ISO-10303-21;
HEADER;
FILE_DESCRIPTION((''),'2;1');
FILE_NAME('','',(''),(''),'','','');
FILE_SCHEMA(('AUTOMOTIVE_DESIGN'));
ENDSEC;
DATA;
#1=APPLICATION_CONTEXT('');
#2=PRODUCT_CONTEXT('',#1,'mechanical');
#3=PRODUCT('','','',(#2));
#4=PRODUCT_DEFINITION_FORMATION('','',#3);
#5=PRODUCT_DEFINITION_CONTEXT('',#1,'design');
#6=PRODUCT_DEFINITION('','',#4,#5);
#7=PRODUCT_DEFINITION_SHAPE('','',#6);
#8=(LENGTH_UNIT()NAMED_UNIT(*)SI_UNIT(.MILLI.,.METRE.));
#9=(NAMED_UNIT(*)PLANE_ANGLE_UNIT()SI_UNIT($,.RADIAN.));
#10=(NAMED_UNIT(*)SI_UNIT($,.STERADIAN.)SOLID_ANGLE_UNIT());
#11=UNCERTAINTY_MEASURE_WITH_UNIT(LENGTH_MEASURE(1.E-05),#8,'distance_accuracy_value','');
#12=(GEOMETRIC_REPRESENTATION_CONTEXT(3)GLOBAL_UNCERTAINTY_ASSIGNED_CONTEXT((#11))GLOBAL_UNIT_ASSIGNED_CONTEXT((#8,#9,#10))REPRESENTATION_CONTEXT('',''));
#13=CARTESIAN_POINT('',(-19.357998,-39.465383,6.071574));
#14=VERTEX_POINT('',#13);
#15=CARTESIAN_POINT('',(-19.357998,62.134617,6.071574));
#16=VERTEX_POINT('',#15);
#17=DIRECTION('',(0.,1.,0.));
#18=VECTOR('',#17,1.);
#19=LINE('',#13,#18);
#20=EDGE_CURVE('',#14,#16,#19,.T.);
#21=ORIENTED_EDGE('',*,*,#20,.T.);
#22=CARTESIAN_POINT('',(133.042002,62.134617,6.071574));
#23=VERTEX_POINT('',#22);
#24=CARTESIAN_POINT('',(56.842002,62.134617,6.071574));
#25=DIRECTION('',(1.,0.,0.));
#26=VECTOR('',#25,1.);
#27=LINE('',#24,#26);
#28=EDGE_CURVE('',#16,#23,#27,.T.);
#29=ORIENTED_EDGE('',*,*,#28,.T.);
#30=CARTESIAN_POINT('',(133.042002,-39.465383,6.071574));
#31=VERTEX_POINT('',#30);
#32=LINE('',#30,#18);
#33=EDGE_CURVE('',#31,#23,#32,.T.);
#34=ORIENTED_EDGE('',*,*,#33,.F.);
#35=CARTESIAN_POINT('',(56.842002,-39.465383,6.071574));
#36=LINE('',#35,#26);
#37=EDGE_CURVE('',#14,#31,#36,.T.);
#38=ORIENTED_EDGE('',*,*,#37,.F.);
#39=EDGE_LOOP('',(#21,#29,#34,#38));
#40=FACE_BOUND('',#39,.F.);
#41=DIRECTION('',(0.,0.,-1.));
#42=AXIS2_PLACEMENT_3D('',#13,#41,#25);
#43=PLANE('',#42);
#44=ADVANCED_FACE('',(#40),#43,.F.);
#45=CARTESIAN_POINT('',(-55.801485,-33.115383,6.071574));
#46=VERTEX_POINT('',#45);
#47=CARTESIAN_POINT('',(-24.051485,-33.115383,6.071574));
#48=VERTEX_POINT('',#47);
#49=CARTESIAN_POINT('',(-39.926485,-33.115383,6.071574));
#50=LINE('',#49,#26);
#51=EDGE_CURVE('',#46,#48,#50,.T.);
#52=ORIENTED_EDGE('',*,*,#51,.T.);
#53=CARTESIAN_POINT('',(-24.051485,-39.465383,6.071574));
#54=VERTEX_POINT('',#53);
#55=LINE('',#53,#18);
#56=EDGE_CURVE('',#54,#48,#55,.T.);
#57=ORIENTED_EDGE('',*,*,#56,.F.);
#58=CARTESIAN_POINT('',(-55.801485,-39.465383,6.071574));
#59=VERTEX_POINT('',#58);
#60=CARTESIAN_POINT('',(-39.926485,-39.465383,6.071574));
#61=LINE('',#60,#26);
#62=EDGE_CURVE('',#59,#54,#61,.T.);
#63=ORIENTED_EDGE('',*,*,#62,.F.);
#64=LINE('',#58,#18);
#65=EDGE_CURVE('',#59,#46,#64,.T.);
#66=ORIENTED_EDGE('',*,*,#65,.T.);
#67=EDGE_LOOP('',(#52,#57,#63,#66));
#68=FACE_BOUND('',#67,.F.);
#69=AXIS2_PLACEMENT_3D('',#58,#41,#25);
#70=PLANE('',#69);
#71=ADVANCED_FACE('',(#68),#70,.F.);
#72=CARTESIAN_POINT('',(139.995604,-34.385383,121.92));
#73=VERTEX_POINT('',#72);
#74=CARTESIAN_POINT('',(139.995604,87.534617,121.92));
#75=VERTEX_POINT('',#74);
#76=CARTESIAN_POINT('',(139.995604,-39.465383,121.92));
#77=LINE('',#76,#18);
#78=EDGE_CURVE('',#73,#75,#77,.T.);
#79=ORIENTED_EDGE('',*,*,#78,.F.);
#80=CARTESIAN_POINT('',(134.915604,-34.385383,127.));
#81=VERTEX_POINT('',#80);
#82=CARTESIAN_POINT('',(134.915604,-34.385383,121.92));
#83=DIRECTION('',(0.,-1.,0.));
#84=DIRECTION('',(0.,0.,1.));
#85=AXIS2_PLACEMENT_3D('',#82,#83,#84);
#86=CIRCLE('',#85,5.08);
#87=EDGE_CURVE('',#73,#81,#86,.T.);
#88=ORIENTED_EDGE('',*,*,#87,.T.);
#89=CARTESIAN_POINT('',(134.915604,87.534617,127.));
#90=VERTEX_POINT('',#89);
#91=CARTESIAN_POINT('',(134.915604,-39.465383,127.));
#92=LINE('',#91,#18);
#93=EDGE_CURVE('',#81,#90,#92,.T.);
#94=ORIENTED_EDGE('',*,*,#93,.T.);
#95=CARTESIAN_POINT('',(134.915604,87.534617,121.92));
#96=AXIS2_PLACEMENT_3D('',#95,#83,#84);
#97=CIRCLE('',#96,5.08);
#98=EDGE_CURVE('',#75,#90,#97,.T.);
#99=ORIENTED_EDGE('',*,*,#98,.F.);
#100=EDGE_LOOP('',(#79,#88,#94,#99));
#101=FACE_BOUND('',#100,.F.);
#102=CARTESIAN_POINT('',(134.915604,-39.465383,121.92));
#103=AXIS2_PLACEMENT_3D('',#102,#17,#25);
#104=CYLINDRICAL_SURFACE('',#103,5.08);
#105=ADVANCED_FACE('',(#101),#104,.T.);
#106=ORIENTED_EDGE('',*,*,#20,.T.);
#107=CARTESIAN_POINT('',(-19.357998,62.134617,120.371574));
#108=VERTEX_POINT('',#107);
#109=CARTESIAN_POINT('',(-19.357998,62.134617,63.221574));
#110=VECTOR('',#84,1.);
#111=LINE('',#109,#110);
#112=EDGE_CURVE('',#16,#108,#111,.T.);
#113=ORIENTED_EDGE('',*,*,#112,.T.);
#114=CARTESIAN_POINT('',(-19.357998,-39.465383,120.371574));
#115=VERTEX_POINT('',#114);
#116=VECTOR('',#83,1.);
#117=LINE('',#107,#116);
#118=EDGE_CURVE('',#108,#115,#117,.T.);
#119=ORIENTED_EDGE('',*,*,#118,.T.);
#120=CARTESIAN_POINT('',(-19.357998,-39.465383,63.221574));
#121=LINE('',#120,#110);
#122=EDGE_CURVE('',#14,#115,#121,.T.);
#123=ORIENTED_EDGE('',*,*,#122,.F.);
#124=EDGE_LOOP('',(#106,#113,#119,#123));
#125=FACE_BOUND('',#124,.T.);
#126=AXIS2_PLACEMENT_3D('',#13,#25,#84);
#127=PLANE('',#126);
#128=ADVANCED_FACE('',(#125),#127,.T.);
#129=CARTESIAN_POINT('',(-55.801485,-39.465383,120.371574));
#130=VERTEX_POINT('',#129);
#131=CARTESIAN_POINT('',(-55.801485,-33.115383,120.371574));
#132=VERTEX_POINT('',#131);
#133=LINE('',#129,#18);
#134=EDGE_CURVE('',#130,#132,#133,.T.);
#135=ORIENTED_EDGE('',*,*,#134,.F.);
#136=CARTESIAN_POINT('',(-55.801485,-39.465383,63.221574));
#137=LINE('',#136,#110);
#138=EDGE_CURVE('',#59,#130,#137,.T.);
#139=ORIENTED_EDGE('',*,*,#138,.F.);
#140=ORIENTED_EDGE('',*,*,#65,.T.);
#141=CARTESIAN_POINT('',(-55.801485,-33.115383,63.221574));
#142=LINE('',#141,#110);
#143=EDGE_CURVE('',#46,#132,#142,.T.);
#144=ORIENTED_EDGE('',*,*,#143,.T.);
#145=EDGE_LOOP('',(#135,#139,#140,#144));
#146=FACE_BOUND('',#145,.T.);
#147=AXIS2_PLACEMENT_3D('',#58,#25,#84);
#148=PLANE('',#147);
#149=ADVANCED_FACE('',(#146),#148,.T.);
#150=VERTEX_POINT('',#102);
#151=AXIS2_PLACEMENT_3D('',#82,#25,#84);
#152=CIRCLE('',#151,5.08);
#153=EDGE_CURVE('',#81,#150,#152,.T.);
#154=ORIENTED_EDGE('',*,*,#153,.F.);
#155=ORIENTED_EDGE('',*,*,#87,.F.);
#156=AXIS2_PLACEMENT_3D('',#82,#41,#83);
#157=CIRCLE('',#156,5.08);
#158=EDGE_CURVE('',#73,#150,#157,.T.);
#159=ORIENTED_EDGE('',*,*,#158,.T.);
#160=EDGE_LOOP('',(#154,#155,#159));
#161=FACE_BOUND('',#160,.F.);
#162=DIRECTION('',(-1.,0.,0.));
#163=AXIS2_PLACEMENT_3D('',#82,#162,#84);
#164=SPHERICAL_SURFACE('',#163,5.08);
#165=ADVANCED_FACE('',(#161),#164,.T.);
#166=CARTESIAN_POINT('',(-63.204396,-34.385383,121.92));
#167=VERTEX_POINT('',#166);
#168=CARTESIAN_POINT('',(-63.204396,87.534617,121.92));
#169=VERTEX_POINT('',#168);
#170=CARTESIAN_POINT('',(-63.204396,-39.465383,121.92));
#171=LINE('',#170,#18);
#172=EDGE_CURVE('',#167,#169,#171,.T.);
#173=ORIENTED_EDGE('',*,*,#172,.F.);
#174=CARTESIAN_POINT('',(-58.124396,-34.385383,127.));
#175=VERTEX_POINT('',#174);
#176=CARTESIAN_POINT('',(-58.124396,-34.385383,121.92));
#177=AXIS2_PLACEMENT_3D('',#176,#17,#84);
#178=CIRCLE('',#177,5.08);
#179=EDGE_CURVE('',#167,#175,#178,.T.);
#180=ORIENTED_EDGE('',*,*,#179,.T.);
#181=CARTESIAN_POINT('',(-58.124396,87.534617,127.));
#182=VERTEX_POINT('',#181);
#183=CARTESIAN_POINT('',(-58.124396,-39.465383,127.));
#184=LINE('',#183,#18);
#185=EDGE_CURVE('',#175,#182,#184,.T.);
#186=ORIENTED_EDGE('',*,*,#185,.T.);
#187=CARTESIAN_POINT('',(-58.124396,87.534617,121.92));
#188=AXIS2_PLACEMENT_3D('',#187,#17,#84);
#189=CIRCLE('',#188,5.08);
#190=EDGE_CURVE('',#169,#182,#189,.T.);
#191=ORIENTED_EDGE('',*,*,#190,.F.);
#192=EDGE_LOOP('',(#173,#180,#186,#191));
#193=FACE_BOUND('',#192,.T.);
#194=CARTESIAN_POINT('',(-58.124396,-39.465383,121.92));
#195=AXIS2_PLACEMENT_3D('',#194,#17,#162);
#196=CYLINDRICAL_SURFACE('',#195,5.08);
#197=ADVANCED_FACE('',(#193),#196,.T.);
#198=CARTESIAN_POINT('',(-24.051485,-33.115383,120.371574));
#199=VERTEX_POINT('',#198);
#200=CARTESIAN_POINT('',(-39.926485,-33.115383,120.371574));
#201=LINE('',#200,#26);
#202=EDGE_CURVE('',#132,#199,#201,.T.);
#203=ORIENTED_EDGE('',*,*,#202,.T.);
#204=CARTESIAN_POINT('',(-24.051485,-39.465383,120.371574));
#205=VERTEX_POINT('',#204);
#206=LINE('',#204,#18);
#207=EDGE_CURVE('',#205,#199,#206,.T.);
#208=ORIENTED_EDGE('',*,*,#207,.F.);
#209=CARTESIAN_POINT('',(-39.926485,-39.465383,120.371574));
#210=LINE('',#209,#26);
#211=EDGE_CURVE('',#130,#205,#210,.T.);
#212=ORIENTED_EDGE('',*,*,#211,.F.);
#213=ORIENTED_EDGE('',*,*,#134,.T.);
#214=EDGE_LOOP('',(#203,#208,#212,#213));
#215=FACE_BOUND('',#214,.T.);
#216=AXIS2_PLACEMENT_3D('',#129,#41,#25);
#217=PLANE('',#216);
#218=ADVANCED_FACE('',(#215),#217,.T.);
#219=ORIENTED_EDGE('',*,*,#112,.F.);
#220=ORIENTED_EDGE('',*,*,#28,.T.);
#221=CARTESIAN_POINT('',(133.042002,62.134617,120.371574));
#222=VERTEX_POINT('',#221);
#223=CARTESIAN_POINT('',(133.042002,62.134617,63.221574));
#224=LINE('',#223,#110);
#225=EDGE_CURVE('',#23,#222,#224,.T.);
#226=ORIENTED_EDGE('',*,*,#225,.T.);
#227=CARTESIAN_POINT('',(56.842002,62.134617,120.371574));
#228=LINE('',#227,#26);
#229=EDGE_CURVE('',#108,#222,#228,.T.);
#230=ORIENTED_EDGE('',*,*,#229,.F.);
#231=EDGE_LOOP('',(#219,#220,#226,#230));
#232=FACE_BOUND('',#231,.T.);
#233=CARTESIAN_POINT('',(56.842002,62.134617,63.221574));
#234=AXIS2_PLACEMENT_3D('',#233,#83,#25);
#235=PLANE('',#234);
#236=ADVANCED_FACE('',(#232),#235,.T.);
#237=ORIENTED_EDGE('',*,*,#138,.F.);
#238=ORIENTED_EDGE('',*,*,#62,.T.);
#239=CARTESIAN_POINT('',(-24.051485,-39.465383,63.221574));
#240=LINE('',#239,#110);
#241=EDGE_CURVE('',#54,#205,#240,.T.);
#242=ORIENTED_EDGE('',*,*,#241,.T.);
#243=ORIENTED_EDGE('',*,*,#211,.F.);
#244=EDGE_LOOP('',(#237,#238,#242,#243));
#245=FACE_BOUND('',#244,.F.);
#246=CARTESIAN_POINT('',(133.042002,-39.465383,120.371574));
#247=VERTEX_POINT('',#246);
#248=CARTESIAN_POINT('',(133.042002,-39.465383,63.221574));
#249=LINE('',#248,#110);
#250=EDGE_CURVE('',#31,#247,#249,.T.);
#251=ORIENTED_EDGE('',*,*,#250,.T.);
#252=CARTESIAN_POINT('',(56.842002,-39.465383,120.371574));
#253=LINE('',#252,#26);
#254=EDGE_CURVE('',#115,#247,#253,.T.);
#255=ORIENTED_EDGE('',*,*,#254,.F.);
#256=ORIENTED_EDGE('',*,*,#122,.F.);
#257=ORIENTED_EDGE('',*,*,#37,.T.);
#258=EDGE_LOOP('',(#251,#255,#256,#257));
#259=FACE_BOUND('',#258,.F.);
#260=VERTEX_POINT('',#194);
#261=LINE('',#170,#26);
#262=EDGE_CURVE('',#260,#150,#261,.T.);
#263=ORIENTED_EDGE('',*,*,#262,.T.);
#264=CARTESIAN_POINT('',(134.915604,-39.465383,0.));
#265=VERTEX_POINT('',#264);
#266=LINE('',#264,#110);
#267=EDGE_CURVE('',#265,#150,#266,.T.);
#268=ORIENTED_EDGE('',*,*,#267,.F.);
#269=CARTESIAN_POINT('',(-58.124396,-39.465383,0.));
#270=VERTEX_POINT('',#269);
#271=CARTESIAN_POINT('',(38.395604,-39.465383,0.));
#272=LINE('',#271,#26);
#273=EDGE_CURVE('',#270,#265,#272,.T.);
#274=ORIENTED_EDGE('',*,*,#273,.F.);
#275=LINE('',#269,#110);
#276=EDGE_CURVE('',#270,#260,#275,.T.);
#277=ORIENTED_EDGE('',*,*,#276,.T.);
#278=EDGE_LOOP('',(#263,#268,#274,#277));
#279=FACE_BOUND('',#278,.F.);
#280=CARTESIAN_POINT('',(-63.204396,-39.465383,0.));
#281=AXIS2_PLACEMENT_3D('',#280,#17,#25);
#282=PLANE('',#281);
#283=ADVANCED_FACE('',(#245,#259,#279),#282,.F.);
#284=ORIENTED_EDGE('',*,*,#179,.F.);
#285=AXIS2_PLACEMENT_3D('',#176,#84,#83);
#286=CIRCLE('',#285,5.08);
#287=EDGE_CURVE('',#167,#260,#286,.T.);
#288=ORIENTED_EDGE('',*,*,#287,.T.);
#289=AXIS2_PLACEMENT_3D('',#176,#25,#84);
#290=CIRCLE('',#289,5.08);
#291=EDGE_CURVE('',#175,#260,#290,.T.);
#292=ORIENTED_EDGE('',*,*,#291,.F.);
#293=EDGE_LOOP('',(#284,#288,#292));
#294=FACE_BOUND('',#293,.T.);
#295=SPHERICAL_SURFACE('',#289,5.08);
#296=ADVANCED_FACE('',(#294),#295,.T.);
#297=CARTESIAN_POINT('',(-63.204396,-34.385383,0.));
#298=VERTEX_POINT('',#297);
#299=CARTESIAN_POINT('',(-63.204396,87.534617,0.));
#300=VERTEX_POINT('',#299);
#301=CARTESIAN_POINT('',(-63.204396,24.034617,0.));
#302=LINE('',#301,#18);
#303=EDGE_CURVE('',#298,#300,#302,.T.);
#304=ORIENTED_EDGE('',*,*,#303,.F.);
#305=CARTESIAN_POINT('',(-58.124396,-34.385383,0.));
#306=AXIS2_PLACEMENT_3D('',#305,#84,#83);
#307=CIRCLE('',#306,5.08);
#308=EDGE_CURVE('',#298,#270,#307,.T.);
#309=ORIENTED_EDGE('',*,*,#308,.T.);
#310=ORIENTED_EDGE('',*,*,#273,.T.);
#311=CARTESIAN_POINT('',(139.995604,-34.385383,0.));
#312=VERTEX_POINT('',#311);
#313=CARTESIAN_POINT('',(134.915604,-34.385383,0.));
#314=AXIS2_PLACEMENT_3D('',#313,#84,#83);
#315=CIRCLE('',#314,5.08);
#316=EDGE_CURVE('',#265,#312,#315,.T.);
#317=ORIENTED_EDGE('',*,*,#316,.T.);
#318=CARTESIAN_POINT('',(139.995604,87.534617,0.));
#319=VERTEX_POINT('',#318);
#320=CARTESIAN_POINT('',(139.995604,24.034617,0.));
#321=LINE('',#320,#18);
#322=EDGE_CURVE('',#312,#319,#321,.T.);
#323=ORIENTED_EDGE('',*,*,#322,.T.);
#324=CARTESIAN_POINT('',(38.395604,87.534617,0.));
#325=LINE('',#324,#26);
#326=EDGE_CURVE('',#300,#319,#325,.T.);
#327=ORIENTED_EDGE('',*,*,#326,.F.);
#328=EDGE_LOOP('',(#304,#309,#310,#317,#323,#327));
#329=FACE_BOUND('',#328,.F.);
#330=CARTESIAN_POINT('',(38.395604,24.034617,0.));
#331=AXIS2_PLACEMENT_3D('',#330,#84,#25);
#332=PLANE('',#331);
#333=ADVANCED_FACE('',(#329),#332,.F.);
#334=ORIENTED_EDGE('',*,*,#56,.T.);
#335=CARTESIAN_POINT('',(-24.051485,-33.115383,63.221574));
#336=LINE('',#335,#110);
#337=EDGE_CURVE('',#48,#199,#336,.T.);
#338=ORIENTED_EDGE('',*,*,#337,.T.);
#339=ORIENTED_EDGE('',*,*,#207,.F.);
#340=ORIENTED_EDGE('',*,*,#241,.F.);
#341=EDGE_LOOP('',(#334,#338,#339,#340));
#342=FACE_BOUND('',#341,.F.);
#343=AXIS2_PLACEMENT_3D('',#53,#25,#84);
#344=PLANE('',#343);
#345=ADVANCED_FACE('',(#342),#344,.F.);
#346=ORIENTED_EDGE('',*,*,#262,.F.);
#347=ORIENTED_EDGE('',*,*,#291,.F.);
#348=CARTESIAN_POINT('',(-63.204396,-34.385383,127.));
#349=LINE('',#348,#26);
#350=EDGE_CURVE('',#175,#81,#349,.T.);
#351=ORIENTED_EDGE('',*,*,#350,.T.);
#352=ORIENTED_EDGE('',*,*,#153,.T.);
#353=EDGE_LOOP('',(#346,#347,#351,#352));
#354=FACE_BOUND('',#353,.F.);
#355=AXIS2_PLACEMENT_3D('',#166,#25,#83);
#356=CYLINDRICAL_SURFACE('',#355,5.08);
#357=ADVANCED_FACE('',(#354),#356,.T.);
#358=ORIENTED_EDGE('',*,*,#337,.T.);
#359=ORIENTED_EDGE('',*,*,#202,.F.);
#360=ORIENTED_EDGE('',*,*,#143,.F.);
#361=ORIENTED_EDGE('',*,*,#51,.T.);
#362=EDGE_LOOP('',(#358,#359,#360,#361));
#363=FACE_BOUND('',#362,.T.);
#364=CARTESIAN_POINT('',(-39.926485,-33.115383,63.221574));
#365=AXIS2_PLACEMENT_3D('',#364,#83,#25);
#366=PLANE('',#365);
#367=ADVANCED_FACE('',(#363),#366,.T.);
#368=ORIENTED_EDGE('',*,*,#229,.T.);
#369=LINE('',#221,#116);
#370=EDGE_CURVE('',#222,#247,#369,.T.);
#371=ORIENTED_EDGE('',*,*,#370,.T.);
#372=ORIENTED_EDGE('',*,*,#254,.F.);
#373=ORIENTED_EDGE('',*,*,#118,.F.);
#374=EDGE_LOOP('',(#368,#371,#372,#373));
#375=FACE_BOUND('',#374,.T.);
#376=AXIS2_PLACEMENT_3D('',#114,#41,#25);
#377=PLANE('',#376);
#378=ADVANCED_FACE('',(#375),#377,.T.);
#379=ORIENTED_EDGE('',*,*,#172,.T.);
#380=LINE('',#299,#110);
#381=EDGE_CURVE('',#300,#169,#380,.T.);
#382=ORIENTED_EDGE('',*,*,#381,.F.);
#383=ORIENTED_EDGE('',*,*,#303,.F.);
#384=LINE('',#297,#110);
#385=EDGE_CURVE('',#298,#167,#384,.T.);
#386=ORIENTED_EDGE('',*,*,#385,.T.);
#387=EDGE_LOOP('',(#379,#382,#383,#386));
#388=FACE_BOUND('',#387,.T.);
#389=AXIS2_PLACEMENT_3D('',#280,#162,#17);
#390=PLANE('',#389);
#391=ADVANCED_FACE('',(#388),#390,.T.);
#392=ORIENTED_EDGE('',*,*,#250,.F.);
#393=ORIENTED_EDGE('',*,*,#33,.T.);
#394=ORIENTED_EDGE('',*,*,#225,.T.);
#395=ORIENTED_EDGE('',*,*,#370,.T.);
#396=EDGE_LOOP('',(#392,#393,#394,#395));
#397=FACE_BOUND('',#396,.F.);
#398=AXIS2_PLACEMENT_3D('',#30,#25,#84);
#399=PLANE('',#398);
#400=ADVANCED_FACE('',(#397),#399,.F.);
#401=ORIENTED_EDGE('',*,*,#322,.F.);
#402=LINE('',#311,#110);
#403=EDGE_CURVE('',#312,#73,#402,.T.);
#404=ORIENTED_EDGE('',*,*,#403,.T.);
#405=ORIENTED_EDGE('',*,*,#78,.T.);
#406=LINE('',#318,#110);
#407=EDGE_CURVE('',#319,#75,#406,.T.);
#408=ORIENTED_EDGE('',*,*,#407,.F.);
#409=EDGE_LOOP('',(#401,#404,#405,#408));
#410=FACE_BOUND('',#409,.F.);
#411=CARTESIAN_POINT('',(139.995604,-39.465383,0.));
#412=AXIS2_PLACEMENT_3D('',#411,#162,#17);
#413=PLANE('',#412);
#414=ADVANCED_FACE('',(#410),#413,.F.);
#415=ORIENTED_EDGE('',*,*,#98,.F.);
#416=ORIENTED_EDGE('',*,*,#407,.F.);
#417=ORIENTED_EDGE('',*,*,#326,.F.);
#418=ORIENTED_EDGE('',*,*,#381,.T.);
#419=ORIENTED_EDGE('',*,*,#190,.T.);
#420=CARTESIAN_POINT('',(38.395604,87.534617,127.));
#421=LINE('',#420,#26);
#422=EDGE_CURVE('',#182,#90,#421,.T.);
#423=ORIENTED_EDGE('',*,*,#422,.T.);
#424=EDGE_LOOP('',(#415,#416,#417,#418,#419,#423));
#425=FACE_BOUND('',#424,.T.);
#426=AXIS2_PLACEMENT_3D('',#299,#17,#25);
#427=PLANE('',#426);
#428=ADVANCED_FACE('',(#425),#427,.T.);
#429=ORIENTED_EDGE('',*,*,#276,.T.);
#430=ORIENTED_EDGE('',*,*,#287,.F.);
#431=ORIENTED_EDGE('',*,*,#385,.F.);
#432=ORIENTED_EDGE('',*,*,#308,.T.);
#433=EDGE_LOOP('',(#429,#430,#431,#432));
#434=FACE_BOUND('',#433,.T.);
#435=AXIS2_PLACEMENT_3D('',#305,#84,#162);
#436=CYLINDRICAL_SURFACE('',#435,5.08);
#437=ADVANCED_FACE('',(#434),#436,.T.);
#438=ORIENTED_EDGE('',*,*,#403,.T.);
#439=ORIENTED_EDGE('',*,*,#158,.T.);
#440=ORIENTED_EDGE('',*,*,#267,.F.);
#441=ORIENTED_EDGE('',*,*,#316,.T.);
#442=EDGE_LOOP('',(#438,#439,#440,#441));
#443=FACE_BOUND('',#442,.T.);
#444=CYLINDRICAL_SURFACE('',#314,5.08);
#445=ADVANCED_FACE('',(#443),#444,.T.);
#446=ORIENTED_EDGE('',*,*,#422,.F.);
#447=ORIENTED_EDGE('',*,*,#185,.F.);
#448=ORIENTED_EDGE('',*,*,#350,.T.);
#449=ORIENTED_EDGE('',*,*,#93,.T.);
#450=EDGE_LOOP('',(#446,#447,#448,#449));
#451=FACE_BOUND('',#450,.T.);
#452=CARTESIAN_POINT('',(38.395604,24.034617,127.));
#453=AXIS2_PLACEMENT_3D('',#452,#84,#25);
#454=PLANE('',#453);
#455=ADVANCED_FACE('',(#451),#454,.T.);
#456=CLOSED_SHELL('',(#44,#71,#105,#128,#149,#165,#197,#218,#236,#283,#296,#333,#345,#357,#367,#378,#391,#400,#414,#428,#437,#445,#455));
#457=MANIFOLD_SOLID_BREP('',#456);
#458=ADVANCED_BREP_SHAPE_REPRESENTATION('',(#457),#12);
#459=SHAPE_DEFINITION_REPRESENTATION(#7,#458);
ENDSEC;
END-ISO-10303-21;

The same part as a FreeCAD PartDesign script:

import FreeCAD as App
import Part
import Sketcher
from FreeCAD import Vector
Q = App.Units.Quantity


def edges_at(feature, points):
    """Names of the edges that pass closest to the given points."""
    edges = feature.Shape.Edges
    near = lambda p: min(range(len(edges)), key=lambda i: edges[i].distToShape(Part.Vertex(*p))[0])
    return sorted({f"Edge{near(p) + 1}" for p in points})


def add_polygon(sketch, points):
    """Adds a closed chain of lines whose ends are joined by coincident constraints."""
    first, n = sketch.GeometryCount, len(points)
    for a, b in zip(points, points[1:] + points[:1]):
        sketch.addGeometry(Part.LineSegment(App.Vector(*a, 0), App.Vector(*b, 0)), False)
    for i in range(n):
        sketch.addConstraint(Sketcher.Constraint("Coincident", first + i, 2, first + (i + 1) % n, 1))

doc = App.newDocument("Part")
body = doc.addObject("PartDesign::Body", "Body")

# Sketch on XY plane
sketch1 = body.newObject("Sketcher::SketchObject", "Sketch")
sketch1.AttachmentSupport = (doc.getObject("XY_Plane"), [""])
sketch1.MapMode = "FlatFace"
add_polygon(sketch1, [(-63, 88), (-63, -39), (140, -39), (140, 88)])  # lines 0-3
sketch1.addConstraint([
    Sketcher.Constraint("Vertical", 0),
    Sketcher.Constraint("Horizontal", 1),
    Sketcher.Constraint("Vertical", 2),
    Sketcher.Constraint("Horizontal", 3),
    Sketcher.Constraint("DistanceX", 1, 1, 1, 2, Q("8 in")),
    Sketcher.Constraint("DistanceY", 0, 2, 0, 1, Q("5 in")),
    Sketcher.Constraint("DistanceX", 0, 2, -1, 1, 63.204396),
    Sketcher.Constraint("DistanceY", 0, 2, -1, 1, 39.465383),
])
pad1 = body.newObject("PartDesign::Pad", "Pad")
pad1.Profile = sketch1
pad1.Length = Q("5 in")
doc.recompute()

fillet = body.newObject("PartDesign::Fillet", "Fillet")
fillet.Base = (pad1, edges_at(pad1, [
    (38.396, -39.465, 127),
    (-63.204, 24.035, 127),
    (139.996, 24.035, 127),
    (139.996, -39.465, 63.5),
    (-63.204, -39.465, 63.5),
]))
fillet.Radius = Q("0.2 in")

# Sketch on XZ plane
sketch2 = body.newObject("Sketcher::SketchObject", "Sketch001")
sketch2.AttachmentSupport = (doc.getObject("XZ_Plane"), [""])
sketch2.MapMode = "FlatFace"
sketch2.AttachmentOffset = App.Placement(Vector(0, 0, 39.465383), App.Rotation())
add_polygon(sketch2, [(-19, 120), (-19, 6), (133, 6), (133, 120)])  # lines 0-3
sketch2.addConstraint([
    Sketcher.Constraint("Vertical", 0),
    Sketcher.Constraint("Horizontal", 1),
    Sketcher.Constraint("Vertical", 2),
    Sketcher.Constraint("Horizontal", 3),
    Sketcher.Constraint("DistanceX", 1, 1, 1, 2, Q("6 in")),
    Sketcher.Constraint("DistanceY", 0, 2, 0, 1, Q("4.5 in")),
    Sketcher.Constraint("DistanceX", -1, 1, 1, 2, 133.042002),
    Sketcher.Constraint("DistanceY", -1, 1, 0, 2, 6.071574),
])
pocket1 = body.newObject("PartDesign::Pocket", "Pocket")
pocket1.Profile = sketch2
pocket1.Length = Q("4 in")

# Sketch on XZ plane
sketch3 = body.newObject("Sketcher::SketchObject", "Sketch002")
sketch3.AttachmentSupport = (doc.getObject("XZ_Plane"), [""])
sketch3.MapMode = "FlatFace"
sketch3.AttachmentOffset = App.Placement(Vector(0, 0, 39.465383), App.Rotation())
add_polygon(sketch3, [(-19, 120), (-19, 6), (133, 6), (133, 120)])  # lines 0-3
add_polygon(sketch3, [(-56, 120), (-56, 6), (-24, 6), (-24, 120)])  # lines 4-7
sketch3.addConstraint([
    Sketcher.Constraint("Vertical", 0),
    Sketcher.Constraint("Horizontal", 1),
    Sketcher.Constraint("Vertical", 2),
    Sketcher.Constraint("Horizontal", 3),
    Sketcher.Constraint("Vertical", 4),
    Sketcher.Constraint("Horizontal", 5),
    Sketcher.Constraint("Vertical", 6),
    Sketcher.Constraint("Horizontal", 7),
    Sketcher.Constraint("Horizontal", 1, 2, 4, 2),
    Sketcher.Constraint("Horizontal", 3, 2, 6, 2),
    Sketcher.Constraint("DistanceX", 1, 1, 1, 2, Q("6 in")),
    Sketcher.Constraint("DistanceY", 0, 2, 0, 1, Q("4.5 in")),
    Sketcher.Constraint("DistanceX", 5, 1, 5, 2, Q("1.25 in")),
    Sketcher.Constraint("DistanceX", -1, 1, 1, 2, 133.042002),
    Sketcher.Constraint("DistanceY", -1, 1, 0, 2, 6.071574),
    Sketcher.Constraint("DistanceX", 4, 2, -1, 1, 55.801485),
])
pocket2 = body.newObject("PartDesign::Pocket", "Pocket001")
pocket2.Profile = sketch3
pocket2.Length = Q("0.25 in")

doc.recompute()
